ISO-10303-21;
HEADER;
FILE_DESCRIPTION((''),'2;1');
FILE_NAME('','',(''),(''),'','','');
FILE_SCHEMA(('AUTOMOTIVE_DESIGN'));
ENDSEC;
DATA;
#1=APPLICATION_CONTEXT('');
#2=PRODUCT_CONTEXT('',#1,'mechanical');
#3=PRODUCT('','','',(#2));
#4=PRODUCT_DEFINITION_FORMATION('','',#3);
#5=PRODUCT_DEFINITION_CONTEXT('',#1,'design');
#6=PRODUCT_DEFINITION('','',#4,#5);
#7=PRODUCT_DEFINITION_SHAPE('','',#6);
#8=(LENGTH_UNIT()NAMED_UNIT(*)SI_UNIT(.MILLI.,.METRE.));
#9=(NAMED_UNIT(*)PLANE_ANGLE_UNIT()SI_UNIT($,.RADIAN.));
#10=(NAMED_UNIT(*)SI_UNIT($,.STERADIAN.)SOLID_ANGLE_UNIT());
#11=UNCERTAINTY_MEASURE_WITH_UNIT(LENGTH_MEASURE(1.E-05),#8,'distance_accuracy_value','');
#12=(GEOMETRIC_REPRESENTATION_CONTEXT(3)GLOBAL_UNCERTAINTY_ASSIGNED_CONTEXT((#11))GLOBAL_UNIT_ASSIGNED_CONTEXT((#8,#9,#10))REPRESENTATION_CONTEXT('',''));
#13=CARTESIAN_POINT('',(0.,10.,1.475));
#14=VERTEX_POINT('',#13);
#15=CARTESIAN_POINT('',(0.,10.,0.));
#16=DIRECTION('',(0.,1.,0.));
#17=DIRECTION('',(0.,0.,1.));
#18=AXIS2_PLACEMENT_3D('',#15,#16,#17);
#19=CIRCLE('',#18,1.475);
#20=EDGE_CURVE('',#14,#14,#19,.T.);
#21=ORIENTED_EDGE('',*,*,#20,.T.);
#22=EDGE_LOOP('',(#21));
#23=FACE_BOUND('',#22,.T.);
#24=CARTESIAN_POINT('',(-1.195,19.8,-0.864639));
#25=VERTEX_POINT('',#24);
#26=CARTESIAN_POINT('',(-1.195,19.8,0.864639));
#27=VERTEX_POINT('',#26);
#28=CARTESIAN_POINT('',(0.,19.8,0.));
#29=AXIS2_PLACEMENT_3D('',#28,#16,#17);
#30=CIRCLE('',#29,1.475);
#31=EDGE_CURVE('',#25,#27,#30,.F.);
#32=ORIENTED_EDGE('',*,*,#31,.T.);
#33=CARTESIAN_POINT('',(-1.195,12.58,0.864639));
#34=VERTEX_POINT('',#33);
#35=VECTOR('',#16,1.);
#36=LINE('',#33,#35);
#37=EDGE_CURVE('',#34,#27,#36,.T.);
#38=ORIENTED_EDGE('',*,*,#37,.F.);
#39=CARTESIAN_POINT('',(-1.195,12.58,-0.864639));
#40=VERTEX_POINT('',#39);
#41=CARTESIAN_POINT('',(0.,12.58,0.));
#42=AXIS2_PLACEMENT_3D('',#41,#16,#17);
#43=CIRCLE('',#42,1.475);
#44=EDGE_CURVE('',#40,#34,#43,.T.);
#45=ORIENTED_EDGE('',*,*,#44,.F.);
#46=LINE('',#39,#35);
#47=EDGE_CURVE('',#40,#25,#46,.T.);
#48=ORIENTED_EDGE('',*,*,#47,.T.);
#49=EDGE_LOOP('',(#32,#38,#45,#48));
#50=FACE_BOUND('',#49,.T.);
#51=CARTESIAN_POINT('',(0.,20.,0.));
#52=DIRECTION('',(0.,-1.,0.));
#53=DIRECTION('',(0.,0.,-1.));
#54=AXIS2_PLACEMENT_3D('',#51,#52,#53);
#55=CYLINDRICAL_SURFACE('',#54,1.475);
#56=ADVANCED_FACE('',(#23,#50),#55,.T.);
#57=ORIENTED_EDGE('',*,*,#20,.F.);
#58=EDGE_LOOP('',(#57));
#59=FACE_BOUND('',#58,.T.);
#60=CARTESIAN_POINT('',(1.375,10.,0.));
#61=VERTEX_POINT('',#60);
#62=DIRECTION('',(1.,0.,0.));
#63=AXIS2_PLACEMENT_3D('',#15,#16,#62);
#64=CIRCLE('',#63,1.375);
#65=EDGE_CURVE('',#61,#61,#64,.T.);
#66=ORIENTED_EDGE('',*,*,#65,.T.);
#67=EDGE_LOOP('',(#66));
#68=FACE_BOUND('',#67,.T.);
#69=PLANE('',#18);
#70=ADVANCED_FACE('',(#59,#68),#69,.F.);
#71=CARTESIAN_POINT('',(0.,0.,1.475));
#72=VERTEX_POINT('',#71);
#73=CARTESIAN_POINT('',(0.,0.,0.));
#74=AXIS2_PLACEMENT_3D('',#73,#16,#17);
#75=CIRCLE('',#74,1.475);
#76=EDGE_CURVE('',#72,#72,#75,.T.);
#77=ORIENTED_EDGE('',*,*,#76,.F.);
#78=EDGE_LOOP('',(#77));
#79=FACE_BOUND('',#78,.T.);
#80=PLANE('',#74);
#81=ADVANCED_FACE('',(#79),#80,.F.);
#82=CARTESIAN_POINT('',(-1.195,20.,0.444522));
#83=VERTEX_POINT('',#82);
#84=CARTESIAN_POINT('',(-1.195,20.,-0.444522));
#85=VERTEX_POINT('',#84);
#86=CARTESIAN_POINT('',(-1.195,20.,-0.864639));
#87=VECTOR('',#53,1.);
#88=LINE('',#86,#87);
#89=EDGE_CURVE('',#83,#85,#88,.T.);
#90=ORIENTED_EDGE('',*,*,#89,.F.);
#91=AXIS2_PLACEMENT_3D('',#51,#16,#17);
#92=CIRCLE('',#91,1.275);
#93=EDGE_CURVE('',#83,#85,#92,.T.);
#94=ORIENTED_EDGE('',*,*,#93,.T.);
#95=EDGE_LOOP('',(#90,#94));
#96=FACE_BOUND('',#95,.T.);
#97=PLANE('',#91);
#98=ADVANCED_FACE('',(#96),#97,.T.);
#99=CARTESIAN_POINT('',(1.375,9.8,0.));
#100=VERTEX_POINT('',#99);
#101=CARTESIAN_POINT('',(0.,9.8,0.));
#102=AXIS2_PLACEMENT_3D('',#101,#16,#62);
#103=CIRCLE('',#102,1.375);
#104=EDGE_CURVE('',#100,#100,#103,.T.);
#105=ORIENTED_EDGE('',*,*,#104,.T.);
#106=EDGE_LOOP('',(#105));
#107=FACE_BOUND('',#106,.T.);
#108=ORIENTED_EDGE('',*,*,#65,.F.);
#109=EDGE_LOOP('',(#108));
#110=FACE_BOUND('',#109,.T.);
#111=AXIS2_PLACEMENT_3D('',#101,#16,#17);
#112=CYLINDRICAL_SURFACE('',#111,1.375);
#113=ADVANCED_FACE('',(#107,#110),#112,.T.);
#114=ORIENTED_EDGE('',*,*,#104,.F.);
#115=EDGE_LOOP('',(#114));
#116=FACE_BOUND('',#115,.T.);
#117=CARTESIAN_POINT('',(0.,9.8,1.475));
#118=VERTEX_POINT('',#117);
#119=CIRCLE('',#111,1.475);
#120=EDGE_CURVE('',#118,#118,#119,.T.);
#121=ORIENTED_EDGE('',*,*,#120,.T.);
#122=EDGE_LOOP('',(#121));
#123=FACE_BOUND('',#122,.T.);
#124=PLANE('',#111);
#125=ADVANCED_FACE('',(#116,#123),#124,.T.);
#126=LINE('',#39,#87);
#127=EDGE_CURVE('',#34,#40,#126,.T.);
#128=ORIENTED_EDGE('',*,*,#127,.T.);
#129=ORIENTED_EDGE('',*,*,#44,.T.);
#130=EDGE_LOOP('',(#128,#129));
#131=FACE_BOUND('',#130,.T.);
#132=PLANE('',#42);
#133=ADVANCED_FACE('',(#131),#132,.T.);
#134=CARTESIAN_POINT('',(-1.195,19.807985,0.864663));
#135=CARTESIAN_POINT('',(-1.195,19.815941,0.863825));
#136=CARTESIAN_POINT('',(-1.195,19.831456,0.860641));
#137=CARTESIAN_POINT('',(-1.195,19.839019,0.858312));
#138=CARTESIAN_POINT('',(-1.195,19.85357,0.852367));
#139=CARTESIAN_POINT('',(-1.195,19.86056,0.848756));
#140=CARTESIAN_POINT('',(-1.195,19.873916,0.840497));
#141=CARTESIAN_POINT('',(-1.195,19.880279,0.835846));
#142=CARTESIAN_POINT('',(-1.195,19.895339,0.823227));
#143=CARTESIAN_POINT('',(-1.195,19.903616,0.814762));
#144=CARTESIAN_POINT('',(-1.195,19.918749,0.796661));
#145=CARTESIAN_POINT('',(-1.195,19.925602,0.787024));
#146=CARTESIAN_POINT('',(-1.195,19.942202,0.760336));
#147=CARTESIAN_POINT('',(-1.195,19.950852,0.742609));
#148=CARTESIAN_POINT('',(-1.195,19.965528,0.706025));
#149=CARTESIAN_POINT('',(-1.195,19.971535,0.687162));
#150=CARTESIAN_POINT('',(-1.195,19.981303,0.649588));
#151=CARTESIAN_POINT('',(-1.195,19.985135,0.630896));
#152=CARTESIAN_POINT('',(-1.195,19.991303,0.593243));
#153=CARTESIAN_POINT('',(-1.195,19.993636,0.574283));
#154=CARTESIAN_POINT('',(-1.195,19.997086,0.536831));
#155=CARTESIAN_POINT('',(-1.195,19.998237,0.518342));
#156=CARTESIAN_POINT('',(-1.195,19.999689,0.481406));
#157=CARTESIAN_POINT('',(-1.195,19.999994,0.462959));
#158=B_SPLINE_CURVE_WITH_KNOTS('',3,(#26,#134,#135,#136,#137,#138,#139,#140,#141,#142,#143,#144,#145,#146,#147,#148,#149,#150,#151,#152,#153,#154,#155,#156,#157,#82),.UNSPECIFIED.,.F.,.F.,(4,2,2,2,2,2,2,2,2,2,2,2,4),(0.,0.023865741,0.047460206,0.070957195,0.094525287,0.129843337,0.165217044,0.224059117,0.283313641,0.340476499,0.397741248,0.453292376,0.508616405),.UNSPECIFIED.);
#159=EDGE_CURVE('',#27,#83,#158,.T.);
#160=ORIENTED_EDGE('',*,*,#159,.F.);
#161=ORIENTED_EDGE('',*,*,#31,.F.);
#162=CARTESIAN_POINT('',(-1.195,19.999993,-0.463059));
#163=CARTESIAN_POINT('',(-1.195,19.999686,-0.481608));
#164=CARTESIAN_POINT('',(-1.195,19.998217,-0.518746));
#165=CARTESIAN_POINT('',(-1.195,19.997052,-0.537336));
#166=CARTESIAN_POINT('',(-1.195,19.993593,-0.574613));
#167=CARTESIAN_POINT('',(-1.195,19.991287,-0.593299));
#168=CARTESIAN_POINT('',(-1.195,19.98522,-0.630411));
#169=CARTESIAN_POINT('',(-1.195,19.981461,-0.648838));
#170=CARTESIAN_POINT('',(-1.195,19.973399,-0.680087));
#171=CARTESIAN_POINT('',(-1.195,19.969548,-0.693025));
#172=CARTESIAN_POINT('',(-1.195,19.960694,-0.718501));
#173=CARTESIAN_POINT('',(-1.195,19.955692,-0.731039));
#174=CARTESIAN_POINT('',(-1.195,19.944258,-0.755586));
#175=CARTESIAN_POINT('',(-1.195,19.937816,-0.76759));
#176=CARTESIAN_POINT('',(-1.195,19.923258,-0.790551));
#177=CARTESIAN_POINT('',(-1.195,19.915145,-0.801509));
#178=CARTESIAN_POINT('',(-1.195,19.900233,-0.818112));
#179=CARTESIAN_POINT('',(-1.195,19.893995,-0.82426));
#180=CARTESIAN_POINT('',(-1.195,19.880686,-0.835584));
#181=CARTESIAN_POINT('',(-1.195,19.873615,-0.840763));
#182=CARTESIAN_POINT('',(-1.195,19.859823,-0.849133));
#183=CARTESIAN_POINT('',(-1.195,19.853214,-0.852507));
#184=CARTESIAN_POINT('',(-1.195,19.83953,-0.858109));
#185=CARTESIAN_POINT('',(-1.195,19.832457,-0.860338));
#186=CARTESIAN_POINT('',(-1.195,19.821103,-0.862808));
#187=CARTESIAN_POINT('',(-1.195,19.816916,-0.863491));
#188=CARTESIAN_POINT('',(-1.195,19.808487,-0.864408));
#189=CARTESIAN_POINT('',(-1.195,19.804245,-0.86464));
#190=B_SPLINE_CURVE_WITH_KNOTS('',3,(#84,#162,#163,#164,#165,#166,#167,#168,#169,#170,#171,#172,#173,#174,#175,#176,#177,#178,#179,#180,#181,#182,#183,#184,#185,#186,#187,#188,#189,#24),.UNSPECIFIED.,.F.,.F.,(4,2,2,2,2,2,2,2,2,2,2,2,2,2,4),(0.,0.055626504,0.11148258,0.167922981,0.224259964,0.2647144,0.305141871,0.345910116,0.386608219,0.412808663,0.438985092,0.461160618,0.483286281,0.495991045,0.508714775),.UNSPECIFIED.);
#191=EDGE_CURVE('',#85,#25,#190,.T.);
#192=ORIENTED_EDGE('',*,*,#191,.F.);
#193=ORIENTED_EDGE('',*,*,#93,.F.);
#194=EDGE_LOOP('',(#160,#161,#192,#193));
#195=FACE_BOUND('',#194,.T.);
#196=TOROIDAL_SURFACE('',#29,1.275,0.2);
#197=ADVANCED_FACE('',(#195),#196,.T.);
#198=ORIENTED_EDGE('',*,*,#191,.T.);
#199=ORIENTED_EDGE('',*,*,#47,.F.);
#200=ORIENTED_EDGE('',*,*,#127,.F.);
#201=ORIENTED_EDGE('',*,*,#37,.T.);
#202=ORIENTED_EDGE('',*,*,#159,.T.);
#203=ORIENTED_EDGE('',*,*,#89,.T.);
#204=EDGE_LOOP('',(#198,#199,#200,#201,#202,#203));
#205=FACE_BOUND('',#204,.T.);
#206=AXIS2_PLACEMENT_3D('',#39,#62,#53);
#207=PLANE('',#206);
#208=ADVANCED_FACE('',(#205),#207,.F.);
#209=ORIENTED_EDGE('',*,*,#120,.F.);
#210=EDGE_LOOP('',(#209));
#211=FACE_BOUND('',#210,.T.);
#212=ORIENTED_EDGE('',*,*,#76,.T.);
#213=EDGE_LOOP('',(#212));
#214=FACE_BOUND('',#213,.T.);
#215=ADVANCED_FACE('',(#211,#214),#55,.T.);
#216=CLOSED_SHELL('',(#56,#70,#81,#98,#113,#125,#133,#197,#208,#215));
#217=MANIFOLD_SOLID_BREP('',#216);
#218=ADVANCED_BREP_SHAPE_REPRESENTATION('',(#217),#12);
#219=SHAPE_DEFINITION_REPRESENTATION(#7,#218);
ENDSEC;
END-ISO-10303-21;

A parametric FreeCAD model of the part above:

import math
import FreeCAD as App
import Part
import Sketcher
from FreeCAD import Vector
Q = App.Units.Quantity


def edges_at(feature, points):
    """Names of the edges that pass closest to the given points."""
    edges = feature.Shape.Edges
    near = lambda p: min(range(len(edges)), key=lambda i: edges[i].distToShape(Part.Vertex(*p))[0])
    return sorted({f"Edge{near(p) + 1}" for p in points})

doc = App.newDocument("Part")
body = doc.addObject("PartDesign::Body", "Body")

# Sketch on XZ plane
sketch1 = body.newObject("Sketcher::SketchObject", "Sketch")
sketch1.AttachmentSupport = (doc.getObject("XZ_Plane"), [""])
sketch1.MapMode = "FlatFace"
sketch1.addGeometry(Part.Circle(Vector(0, 0, 0), Vector(0, 0, 1), 1.5), False)
sketch1.addConstraint(Sketcher.Constraint("Coincident", 0, 3, -1, 1))
sketch1.addConstraint(Sketcher.Constraint("Diameter", 0, Q("2.95 mm")))
pad1 = body.newObject("PartDesign::Pad", "Pad")
pad1.Profile = sketch1
pad1.Length = 20
pad1.Reversed = True

# Sketch on XZ plane
sketch2 = body.newObject("Sketcher::SketchObject", "Sketch001")
sketch2.AttachmentSupport = (doc.getObject("XZ_Plane"), [""])
sketch2.MapMode = "FlatFace"
sketch2.AttachmentOffset = App.Placement(Vector(0, 0, -10), App.Rotation())
sketch2.addGeometry(Part.Circle(Vector(0, 0, 0), Vector(0, 0, 1), 1.5), False)
sketch2.addGeometry(Part.Circle(Vector(0, 0, 0), Vector(0, 0, 1), 1.4), False)
sketch2.addConstraint(Sketcher.Constraint("Coincident", 0, 3, -1, 1))
sketch2.addConstraint(Sketcher.Constraint("Coincident", 1, 3, -1, 1))
sketch2.addConstraint(Sketcher.Constraint("Diameter", 0, Q("2.95 mm")))
sketch2.addConstraint(Sketcher.Constraint("Diameter", 1, Q("2.75 mm")))
pocket1 = body.newObject("PartDesign::Pocket", "Pocket")
pocket1.Profile = sketch2
pocket1.Length = 0.2
pocket1.Reversed = True

# Sketch on XZ plane
sketch3 = body.newObject("Sketcher::SketchObject", "Sketch002")
sketch3.AttachmentSupport = (doc.getObject("XZ_Plane"), [""])
sketch3.MapMode = "FlatFace"
sketch3.AttachmentOffset = App.Placement(Vector(0, 0, -20), App.Rotation())
sketch3.addGeometry(Part.LineSegment(Vector(-1.2, 0.9, 0), Vector(-1.2, -0.9, 0)), False)
sketch3.addGeometry(Part.ArcOfCircle(Part.Circle(Vector(0, 0, 0), Vector(0, 0, 1), 1.5), math.radians(144), math.radians(216)), False)
sketch3.addConstraint(Sketcher.Constraint("Coincident", 0, 1, 1, 1))
sketch3.addConstraint(Sketcher.Constraint("Coincident", 1, 2, 0, 2))
sketch3.addConstraint(Sketcher.Constraint("Vertical", 0))
sketch3.addConstraint(Sketcher.Constraint("Coincident", 1, 3, -1, 1))
sketch3.addConstraint(Sketcher.Constraint("Radius", 1, Q("1.475 mm")))
sketch3.addConstraint(Sketcher.Constraint("DistanceX", 0, 1, -1, 1, Q("1.195 mm")))
pocket2 = body.newObject("PartDesign::Pocket", "Pocket001")
pocket2.Profile = sketch3
pocket2.Length = 7.42
pocket2.Reversed = True
doc.recompute()

fillet = body.newObject("PartDesign::Fillet", "Fillet")
fillet.Base = (pocket2, edges_at(pocket2, [(0.454, 20, 1.403)]))
fillet.Radius = 0.2

doc.recompute()
